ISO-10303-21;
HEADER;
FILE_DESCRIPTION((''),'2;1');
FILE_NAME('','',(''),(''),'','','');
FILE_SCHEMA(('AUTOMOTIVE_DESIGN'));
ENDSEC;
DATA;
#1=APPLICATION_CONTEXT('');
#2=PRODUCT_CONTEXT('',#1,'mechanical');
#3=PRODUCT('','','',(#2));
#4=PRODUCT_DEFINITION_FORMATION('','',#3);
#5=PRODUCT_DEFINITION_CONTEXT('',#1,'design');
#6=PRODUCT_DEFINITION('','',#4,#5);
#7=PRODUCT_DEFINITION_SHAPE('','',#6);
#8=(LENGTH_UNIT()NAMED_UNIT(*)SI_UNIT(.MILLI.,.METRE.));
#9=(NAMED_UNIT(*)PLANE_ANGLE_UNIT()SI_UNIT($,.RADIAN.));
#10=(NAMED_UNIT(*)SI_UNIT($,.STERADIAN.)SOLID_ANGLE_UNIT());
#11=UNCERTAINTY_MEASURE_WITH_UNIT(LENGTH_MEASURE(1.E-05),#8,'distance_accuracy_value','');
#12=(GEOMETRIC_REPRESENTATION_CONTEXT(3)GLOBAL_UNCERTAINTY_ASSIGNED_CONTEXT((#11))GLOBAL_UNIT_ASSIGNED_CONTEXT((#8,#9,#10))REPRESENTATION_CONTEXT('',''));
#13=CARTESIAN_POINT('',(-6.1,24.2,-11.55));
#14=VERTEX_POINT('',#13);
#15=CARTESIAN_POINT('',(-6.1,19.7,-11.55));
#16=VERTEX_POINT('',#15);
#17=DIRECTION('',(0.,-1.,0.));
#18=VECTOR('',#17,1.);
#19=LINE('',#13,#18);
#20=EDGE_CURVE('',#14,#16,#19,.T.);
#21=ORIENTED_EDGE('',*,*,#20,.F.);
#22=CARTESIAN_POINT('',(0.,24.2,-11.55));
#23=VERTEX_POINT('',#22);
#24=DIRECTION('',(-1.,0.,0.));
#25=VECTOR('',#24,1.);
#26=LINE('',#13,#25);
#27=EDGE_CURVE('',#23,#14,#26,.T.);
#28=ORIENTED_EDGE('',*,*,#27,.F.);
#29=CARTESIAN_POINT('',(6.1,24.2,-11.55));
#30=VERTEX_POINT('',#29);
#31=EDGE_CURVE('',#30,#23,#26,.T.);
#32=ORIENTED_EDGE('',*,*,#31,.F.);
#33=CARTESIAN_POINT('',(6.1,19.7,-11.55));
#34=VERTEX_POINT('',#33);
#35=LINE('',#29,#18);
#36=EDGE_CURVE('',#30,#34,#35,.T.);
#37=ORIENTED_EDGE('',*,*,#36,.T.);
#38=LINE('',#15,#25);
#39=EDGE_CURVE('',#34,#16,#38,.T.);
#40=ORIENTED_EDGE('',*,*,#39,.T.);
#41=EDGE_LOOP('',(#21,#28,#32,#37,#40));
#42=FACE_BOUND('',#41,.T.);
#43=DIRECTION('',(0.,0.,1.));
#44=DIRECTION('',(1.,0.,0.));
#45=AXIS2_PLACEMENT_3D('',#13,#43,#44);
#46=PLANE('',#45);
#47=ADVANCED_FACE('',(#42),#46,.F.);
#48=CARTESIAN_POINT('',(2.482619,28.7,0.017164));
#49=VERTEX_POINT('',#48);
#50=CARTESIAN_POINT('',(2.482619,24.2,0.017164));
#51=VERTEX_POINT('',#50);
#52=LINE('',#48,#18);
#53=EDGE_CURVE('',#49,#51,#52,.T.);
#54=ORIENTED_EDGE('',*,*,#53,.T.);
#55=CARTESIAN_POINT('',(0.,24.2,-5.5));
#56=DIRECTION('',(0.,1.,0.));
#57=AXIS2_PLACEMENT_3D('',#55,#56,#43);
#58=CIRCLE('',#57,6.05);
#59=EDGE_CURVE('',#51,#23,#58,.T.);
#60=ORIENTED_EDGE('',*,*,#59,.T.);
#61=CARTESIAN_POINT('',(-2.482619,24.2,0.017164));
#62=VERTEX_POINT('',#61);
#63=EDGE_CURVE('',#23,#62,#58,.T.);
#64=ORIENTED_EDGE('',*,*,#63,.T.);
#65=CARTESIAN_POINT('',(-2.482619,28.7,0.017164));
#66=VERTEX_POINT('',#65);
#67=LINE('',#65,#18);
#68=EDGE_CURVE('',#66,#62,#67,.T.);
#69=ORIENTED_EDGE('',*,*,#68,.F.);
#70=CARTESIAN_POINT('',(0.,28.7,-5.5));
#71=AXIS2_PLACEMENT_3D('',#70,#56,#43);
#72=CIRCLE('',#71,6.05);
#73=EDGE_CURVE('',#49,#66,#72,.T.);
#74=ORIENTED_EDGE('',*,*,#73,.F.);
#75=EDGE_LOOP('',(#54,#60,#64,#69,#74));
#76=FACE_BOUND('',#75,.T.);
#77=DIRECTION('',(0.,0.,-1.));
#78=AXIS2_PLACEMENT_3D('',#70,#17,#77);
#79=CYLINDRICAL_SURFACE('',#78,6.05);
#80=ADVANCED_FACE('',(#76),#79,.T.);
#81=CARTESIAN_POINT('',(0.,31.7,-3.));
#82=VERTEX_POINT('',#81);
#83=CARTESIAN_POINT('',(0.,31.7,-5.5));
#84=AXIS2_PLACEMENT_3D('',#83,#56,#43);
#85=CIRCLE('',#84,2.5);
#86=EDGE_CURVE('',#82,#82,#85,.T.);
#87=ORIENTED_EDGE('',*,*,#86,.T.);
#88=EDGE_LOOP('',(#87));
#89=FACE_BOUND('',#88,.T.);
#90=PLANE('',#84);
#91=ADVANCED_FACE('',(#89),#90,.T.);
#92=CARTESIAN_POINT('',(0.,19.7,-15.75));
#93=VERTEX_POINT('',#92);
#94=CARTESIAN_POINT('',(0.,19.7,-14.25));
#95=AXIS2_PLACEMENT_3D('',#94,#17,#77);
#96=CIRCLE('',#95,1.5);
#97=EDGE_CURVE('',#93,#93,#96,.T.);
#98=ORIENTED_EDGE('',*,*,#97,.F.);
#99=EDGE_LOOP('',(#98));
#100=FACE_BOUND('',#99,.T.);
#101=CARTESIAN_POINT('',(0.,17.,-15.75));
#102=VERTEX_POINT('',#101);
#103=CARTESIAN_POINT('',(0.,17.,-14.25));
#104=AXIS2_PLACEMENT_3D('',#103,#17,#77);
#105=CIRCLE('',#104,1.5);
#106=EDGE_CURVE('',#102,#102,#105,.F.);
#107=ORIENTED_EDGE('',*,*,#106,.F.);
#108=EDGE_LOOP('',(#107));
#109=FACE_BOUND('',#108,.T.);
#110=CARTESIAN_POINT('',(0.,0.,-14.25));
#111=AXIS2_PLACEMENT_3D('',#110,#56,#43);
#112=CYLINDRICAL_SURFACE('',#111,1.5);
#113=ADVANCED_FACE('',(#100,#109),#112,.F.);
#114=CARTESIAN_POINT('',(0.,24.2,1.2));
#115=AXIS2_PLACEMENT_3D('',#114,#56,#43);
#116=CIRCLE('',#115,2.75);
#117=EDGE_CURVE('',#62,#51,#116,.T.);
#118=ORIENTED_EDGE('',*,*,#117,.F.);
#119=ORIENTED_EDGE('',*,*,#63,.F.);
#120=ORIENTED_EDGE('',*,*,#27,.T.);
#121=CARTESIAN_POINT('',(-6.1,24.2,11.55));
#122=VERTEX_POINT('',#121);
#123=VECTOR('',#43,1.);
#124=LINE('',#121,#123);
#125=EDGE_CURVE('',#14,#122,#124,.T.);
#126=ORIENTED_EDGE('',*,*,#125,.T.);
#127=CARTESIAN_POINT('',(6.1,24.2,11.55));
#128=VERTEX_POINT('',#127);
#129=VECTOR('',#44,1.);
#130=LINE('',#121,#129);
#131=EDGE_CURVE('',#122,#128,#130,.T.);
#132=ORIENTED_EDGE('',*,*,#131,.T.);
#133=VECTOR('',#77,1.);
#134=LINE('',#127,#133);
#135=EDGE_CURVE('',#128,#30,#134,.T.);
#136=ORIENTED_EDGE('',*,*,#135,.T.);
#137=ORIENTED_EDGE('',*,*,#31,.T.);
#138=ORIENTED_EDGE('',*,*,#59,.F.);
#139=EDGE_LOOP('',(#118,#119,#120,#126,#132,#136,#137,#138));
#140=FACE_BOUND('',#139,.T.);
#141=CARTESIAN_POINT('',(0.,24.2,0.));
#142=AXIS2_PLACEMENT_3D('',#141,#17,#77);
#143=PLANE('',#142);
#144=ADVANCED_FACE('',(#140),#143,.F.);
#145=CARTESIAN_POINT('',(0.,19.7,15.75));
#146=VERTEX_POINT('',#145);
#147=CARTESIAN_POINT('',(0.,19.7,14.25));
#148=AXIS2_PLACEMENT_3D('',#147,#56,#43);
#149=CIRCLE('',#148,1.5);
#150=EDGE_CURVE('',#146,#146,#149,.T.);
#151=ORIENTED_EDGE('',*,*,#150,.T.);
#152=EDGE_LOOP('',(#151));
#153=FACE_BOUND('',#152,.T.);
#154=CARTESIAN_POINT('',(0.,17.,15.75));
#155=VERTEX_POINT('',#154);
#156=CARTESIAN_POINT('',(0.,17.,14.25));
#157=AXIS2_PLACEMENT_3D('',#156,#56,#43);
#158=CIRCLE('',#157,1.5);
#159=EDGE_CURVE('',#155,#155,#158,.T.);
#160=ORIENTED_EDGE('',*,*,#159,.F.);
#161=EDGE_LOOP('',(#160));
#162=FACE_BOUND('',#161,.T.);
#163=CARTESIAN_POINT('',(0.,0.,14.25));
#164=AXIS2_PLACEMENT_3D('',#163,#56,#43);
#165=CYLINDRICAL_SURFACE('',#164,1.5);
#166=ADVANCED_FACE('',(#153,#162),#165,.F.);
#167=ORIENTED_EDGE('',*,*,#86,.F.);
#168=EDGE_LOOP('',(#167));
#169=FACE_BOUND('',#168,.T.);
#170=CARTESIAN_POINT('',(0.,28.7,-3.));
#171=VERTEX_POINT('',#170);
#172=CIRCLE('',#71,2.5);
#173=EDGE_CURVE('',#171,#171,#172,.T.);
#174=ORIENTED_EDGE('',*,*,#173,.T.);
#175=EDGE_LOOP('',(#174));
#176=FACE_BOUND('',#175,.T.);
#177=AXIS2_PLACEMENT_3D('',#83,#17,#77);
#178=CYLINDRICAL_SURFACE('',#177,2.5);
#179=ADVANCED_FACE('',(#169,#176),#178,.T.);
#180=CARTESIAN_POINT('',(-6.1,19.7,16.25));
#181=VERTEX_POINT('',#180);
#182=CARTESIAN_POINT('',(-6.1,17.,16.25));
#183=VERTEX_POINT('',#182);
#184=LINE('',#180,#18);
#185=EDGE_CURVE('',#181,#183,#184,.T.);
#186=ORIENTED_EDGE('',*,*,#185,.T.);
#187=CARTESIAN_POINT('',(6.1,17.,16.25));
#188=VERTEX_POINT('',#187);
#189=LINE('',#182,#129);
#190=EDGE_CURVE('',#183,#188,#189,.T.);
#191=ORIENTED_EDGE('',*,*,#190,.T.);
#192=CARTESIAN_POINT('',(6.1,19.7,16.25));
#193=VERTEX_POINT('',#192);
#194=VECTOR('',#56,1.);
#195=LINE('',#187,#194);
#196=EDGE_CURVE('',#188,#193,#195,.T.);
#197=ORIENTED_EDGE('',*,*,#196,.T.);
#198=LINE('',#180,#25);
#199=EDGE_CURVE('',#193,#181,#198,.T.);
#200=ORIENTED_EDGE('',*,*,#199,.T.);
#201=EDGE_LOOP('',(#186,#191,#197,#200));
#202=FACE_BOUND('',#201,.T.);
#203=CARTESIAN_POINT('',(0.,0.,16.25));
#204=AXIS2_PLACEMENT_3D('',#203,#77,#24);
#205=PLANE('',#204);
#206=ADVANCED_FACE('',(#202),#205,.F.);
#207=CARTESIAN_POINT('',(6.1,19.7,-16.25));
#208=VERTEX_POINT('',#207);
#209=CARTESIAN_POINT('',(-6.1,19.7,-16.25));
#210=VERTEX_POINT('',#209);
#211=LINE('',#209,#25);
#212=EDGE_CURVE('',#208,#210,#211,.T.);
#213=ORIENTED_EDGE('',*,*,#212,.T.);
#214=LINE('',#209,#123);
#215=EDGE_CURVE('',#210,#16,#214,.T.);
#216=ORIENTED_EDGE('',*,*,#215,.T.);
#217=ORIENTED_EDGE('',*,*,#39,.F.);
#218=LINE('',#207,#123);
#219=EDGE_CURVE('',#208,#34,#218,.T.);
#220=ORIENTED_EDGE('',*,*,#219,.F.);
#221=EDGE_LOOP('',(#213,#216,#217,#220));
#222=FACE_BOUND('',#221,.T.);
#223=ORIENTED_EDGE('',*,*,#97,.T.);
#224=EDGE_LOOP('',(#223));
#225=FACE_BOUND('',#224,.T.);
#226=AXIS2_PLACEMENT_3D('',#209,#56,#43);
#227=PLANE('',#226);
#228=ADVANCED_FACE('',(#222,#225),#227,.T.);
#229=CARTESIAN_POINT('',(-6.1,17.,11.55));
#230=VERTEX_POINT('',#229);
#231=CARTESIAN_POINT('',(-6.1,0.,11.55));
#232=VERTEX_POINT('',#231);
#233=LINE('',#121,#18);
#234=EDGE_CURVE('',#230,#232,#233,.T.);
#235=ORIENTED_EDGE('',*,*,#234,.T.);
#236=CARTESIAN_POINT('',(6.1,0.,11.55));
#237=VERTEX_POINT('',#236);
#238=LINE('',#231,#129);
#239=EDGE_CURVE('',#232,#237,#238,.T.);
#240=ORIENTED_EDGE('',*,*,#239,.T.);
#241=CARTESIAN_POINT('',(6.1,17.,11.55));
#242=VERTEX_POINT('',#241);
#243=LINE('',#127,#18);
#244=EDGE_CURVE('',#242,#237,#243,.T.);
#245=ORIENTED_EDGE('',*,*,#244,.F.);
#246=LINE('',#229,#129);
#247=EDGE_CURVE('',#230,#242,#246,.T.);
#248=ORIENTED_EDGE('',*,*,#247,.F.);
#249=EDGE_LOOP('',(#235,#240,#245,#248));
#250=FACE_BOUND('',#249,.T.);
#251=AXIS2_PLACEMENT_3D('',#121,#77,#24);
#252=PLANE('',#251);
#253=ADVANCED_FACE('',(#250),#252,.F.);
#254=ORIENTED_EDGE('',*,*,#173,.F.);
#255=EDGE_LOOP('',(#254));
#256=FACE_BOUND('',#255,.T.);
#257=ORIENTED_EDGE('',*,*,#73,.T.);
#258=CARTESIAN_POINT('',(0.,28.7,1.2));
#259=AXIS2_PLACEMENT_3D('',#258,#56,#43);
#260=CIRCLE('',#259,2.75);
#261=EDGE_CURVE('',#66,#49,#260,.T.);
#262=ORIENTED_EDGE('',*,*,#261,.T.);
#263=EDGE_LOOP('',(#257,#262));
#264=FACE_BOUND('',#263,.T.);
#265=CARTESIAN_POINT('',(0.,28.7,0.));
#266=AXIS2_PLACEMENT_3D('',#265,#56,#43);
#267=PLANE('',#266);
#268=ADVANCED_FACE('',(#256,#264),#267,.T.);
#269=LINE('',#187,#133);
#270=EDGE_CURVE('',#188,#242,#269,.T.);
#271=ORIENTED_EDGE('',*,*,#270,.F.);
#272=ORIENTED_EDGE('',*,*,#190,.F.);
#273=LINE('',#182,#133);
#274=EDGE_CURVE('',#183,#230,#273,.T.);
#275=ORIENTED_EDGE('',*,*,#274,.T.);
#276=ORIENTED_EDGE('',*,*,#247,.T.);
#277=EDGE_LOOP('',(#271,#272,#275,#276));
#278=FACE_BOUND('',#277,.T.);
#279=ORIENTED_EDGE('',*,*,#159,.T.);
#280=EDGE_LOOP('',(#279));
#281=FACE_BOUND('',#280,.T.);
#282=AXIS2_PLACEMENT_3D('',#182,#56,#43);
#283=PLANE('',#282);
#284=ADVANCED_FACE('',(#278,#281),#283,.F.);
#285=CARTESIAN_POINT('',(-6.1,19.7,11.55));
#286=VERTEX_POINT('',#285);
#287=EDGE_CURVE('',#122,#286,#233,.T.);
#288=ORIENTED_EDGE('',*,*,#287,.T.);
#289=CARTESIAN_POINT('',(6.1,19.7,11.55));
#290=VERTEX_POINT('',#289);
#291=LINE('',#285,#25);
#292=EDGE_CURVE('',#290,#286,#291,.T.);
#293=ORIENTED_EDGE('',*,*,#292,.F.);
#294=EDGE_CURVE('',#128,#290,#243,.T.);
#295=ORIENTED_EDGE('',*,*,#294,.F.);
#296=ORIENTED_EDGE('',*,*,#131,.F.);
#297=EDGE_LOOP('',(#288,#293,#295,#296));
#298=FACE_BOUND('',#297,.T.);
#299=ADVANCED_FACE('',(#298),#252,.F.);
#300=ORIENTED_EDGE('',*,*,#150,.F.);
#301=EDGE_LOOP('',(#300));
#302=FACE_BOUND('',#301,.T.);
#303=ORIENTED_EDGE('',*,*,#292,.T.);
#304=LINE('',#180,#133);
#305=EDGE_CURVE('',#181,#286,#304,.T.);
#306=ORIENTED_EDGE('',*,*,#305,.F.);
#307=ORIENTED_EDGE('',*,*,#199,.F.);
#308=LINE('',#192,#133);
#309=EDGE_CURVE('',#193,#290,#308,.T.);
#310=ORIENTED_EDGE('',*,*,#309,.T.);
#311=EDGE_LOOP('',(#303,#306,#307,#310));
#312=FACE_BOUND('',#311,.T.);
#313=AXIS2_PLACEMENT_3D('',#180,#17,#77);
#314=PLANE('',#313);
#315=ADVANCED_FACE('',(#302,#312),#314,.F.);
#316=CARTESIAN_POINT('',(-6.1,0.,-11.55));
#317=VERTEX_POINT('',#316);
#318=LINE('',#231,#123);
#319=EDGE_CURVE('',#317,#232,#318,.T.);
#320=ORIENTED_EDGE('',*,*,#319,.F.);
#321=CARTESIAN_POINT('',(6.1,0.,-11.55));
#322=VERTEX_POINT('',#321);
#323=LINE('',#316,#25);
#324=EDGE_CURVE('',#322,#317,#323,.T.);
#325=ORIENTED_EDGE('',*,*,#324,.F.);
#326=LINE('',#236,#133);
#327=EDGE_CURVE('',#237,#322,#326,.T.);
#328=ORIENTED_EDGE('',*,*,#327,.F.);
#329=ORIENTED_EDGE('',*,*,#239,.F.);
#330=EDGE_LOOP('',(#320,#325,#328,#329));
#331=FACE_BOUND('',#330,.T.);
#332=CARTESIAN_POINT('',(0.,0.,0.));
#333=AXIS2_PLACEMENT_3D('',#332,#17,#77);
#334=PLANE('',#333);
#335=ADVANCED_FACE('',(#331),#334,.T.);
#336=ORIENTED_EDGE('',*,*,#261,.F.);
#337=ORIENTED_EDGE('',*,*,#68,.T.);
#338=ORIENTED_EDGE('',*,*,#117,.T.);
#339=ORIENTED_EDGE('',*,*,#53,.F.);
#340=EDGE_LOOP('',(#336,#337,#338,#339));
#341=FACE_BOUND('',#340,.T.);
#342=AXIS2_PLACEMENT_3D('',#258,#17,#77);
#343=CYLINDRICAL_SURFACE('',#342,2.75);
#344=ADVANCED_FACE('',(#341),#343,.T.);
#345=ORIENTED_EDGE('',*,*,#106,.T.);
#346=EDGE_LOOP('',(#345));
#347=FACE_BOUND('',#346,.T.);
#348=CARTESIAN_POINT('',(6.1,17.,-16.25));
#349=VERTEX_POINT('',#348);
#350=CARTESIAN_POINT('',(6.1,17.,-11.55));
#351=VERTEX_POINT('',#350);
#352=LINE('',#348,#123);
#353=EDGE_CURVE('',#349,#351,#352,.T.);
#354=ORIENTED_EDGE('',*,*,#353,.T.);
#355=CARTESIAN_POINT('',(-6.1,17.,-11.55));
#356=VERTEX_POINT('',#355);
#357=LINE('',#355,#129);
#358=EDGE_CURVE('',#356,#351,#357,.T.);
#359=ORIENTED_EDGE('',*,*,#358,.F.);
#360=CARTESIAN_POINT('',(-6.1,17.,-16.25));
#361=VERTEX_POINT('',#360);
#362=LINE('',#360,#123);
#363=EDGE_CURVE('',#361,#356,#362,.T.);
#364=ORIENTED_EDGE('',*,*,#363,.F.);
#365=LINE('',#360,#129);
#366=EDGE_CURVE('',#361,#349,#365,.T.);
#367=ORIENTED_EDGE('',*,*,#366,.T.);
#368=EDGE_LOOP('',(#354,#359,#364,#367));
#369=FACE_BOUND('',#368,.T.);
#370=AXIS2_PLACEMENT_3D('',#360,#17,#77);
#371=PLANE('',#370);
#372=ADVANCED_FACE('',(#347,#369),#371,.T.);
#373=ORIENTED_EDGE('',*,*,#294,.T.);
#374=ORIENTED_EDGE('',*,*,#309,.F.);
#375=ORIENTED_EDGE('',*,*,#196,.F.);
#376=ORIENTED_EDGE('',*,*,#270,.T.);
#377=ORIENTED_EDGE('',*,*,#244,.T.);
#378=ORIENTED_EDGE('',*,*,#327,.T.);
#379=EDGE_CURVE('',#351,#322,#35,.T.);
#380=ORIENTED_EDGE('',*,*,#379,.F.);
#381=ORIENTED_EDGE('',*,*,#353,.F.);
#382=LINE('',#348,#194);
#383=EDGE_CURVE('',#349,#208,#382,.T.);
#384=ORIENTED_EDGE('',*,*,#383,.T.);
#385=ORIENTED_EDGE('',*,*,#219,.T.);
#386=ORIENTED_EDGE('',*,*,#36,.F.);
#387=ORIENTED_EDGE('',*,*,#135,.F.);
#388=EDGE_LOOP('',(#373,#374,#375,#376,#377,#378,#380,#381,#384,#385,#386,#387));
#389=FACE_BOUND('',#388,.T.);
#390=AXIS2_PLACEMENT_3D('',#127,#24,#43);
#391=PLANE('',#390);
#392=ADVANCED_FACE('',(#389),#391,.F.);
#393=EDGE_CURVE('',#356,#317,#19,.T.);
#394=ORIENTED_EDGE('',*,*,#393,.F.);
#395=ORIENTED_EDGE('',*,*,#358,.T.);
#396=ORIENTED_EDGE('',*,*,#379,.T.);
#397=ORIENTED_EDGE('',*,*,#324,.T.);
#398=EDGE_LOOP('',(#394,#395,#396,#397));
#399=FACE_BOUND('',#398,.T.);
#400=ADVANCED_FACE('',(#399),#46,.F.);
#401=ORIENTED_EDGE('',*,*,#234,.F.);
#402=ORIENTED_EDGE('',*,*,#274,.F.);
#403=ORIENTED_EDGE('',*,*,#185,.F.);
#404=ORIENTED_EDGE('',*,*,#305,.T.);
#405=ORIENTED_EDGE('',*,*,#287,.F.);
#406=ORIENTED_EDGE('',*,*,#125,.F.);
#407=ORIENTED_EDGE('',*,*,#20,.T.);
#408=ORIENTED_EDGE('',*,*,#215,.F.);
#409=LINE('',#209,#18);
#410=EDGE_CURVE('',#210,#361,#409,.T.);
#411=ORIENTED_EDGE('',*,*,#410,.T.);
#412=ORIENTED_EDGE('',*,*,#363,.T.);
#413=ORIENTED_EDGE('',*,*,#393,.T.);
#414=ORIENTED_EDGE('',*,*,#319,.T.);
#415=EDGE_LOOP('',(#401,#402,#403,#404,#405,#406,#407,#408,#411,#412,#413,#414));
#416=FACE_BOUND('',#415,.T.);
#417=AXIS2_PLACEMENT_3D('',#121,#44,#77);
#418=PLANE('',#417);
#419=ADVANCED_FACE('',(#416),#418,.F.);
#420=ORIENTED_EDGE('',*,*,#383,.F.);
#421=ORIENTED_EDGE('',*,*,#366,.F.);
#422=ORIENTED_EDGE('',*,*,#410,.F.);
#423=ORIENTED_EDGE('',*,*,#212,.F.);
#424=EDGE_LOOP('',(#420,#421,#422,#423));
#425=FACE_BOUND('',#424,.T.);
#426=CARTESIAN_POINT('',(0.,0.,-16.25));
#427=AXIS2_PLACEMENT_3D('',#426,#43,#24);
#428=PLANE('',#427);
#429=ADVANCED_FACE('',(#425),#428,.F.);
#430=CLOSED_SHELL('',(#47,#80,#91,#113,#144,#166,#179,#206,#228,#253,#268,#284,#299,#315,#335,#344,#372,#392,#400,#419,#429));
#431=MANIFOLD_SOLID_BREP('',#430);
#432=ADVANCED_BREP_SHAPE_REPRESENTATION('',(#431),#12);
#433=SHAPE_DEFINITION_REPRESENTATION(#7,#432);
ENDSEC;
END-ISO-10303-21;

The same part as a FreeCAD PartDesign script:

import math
import FreeCAD as App
import Part
import Sketcher

doc = App.newDocument("Part")
body = doc.addObject("PartDesign::Body", "Body")

sketch1 = doc.addObject("Sketcher::SketchObject", "Sketch")
body.addObject(sketch1)
sketch1.AttachmentSupport = (doc.XZ_Plane, [""])
sketch1.MapMode = "FlatFace"
sketch1.addGeometry(Part.LineSegment(App.Vector(-6, -12, 0), App.Vector(-6, 12, 0)), False)
sketch1.addGeometry(Part.LineSegment(App.Vector(-6, 12, 0), App.Vector(6, 12, 0)), False)
sketch1.addGeometry(Part.LineSegment(App.Vector(6, 12, 0), App.Vector(6, -12, 0)), False)
sketch1.addGeometry(Part.LineSegment(App.Vector(6, -12, 0), App.Vector(-6, -12, 0)), False)
sketch1.addConstraint(Sketcher.Constraint("Coincident", 0, 2, 1, 1))
sketch1.addConstraint(Sketcher.Constraint("Coincident", 1, 2, 2, 1))
sketch1.addConstraint(Sketcher.Constraint("Coincident", 2, 2, 3, 1))
sketch1.addConstraint(Sketcher.Constraint("Coincident", 3, 2, 0, 1))
sketch1.addConstraint(Sketcher.Constraint("Vertical", 0))
sketch1.addConstraint(Sketcher.Constraint("Horizontal", 1))
sketch1.addConstraint(Sketcher.Constraint("Vertical", 2))
sketch1.addConstraint(Sketcher.Constraint("Horizontal", 3))
sketch1.addConstraint(Sketcher.Constraint("Symmetric", 0, 2, 2, 2, -1, 1))
sketch1.addConstraint(Sketcher.Constraint("DistanceX", 1, 1, 1, 2, 12.2))
sketch1.addConstraint(Sketcher.Constraint("DistanceY", 0, 1, 0, 2, 23.1))
pad1 = doc.addObject("PartDesign::Pad", "Pad")
body.addObject(pad1)
pad1.Profile = sketch1
pad1.Length = 24.2
pad1.Reversed = True

sketch2 = doc.addObject("Sketcher::SketchObject", "Sketch001")
body.addObject(sketch2)
sketch2.AttachmentSupport = (doc.XY_Plane, [""])
sketch2.MapMode = "FlatFace"
sketch2.AttachmentOffset = App.Placement(App.Vector(0, 0, 11.55), App.Rotation())
sketch2.addGeometry(Part.LineSegment(App.Vector(-6.1, 19.7, 0), App.Vector(-6.1, 17, 0)), False)
sketch2.addGeometry(Part.LineSegment(App.Vector(-6.1, 17, 0), App.Vector(6.1, 17, 0)), False)
sketch2.addGeometry(Part.LineSegment(App.Vector(6.1, 17, 0), App.Vector(6.1, 19.7, 0)), False)
sketch2.addGeometry(Part.LineSegment(App.Vector(6.1, 19.7, 0), App.Vector(-6.1, 19.7, 0)), False)
sketch2.addConstraint(Sketcher.Constraint("Coincident", 0, 2, 1, 1))
sketch2.addConstraint(Sketcher.Constraint("Coincident", 1, 2, 2, 1))
sketch2.addConstraint(Sketcher.Constraint("Coincident", 2, 2, 3, 1))
sketch2.addConstraint(Sketcher.Constraint("Coincident", 3, 2, 0, 1))
sketch2.addConstraint(Sketcher.Constraint("Vertical", 0))
sketch2.addConstraint(Sketcher.Constraint("Horizontal", 1))
sketch2.addConstraint(Sketcher.Constraint("Vertical", 2))
sketch2.addConstraint(Sketcher.Constraint("Horizontal", 3))
sketch2.addConstraint(Sketcher.Constraint("DistanceX", 1, 1, 1, 2, 12.2))
sketch2.addConstraint(Sketcher.Constraint("DistanceY", 0, 2, 0, 1, 2.7))
sketch2.addConstraint(Sketcher.Constraint("DistanceY", -1, 1, 0, 2, 17.0))
sketch2.addConstraint(Sketcher.Constraint("DistanceX", 0, 2, -1, 1, 6.1))
pad2 = doc.addObject("PartDesign::Pad", "Pad001")
body.addObject(pad2)
pad2.Profile = sketch2
pad2.Length = 4.7

sketch3 = doc.addObject("Sketcher::SketchObject", "Sketch002")
body.addObject(sketch3)
sketch3.AttachmentSupport = (doc.XZ_Plane, [""])
sketch3.MapMode = "FlatFace"
sketch3.AttachmentOffset = App.Placement(App.Vector(0, 0, 1), App.Rotation())
sketch3.addGeometry(Part.Circle(App.Vector(0, 14.2, 0), App.Vector(0, 0, 1), 1.5), False)
sketch3.addConstraint(Sketcher.Constraint("PointOnObject", 0, 3, -2))
sketch3.addConstraint(Sketcher.Constraint("Diameter", 0, 3.0))
sketch3.addConstraint(Sketcher.Constraint("DistanceY", -1, 1, 0, 3, 14.25))
pocket1 = doc.addObject("PartDesign::Pocket", "Pocket")
body.addObject(pocket1)
pocket1.Profile = sketch3
pocket1.Length = 26.2
doc.recompute()

mirrored = doc.addObject("PartDesign::Mirrored", "Mirrored")
body.addObject(mirrored)
mirrored.Originals = [pad2, pocket1]
mirrored.MirrorPlane = (doc.XY_Plane, [""])
body.Tip = mirrored

sketch4 = doc.addObject("Sketcher::SketchObject", "Sketch003")
body.addObject(sketch4)
sketch4.AttachmentSupport = (doc.XZ_Plane, [""])
sketch4.MapMode = "FlatFace"
sketch4.AttachmentOffset = App.Placement(App.Vector(0, 0, -24.2), App.Rotation())
sketch4.addGeometry(Part.ArcOfCircle(Part.Circle(App.Vector(0, -5.5, 0), App.Vector(0, 0, 1), 6), math.radians(114), math.radians(426)), False)
sketch4.addGeometry(Part.ArcOfCircle(Part.Circle(App.Vector(0, 1.2, 0), App.Vector(0, 0, 1), 2.8), math.radians(-25), math.radians(205)), False)
sketch4.addConstraint(Sketcher.Constraint("Coincident", 0, 1, 1, 2))
sketch4.addConstraint(Sketcher.Constraint("Coincident", 1, 1, 0, 2))
sketch4.addConstraint(Sketcher.Constraint("Symmetric", 0, 1, 1, 1, -2))
sketch4.addConstraint(Sketcher.Constraint("Radius", 0, 6.05))
sketch4.addConstraint(Sketcher.Constraint("Radius", 1, 2.75))
sketch4.addConstraint(Sketcher.Constraint("DistanceY", 0, 3, -1, 1, 5.5))
sketch4.addConstraint(Sketcher.Constraint("DistanceY", -1, 1, 1, 3, 1.2))
pad3 = doc.addObject("PartDesign::Pad", "Pad002")
body.addObject(pad3)
pad3.Profile = sketch4
pad3.Length = 4.5
pad3.Reversed = True

sketch5 = doc.addObject("Sketcher::SketchObject", "Sketch004")
body.addObject(sketch5)
sketch5.AttachmentSupport = (doc.XZ_Plane, [""])
sketch5.MapMode = "FlatFace"
sketch5.AttachmentOffset = App.Placement(App.Vector(0, 0, -28.7), App.Rotation())
sketch5.addGeometry(Part.Circle(App.Vector(0, -5.5, 0), App.Vector(0, 0, 1), 2.5), False)
sketch5.addConstraint(Sketcher.Constraint("PointOnObject", 0, 3, -2))
sketch5.addConstraint(Sketcher.Constraint("Diameter", 0, 5.0))
sketch5.addConstraint(Sketcher.Constraint("DistanceY", 0, 3, -1, 1, 5.5))
pad4 = doc.addObject("PartDesign::Pad", "Pad003")
body.addObject(pad4)
pad4.Profile = sketch5
pad4.Length = 3
pad4.Reversed = True

doc.recompute()
